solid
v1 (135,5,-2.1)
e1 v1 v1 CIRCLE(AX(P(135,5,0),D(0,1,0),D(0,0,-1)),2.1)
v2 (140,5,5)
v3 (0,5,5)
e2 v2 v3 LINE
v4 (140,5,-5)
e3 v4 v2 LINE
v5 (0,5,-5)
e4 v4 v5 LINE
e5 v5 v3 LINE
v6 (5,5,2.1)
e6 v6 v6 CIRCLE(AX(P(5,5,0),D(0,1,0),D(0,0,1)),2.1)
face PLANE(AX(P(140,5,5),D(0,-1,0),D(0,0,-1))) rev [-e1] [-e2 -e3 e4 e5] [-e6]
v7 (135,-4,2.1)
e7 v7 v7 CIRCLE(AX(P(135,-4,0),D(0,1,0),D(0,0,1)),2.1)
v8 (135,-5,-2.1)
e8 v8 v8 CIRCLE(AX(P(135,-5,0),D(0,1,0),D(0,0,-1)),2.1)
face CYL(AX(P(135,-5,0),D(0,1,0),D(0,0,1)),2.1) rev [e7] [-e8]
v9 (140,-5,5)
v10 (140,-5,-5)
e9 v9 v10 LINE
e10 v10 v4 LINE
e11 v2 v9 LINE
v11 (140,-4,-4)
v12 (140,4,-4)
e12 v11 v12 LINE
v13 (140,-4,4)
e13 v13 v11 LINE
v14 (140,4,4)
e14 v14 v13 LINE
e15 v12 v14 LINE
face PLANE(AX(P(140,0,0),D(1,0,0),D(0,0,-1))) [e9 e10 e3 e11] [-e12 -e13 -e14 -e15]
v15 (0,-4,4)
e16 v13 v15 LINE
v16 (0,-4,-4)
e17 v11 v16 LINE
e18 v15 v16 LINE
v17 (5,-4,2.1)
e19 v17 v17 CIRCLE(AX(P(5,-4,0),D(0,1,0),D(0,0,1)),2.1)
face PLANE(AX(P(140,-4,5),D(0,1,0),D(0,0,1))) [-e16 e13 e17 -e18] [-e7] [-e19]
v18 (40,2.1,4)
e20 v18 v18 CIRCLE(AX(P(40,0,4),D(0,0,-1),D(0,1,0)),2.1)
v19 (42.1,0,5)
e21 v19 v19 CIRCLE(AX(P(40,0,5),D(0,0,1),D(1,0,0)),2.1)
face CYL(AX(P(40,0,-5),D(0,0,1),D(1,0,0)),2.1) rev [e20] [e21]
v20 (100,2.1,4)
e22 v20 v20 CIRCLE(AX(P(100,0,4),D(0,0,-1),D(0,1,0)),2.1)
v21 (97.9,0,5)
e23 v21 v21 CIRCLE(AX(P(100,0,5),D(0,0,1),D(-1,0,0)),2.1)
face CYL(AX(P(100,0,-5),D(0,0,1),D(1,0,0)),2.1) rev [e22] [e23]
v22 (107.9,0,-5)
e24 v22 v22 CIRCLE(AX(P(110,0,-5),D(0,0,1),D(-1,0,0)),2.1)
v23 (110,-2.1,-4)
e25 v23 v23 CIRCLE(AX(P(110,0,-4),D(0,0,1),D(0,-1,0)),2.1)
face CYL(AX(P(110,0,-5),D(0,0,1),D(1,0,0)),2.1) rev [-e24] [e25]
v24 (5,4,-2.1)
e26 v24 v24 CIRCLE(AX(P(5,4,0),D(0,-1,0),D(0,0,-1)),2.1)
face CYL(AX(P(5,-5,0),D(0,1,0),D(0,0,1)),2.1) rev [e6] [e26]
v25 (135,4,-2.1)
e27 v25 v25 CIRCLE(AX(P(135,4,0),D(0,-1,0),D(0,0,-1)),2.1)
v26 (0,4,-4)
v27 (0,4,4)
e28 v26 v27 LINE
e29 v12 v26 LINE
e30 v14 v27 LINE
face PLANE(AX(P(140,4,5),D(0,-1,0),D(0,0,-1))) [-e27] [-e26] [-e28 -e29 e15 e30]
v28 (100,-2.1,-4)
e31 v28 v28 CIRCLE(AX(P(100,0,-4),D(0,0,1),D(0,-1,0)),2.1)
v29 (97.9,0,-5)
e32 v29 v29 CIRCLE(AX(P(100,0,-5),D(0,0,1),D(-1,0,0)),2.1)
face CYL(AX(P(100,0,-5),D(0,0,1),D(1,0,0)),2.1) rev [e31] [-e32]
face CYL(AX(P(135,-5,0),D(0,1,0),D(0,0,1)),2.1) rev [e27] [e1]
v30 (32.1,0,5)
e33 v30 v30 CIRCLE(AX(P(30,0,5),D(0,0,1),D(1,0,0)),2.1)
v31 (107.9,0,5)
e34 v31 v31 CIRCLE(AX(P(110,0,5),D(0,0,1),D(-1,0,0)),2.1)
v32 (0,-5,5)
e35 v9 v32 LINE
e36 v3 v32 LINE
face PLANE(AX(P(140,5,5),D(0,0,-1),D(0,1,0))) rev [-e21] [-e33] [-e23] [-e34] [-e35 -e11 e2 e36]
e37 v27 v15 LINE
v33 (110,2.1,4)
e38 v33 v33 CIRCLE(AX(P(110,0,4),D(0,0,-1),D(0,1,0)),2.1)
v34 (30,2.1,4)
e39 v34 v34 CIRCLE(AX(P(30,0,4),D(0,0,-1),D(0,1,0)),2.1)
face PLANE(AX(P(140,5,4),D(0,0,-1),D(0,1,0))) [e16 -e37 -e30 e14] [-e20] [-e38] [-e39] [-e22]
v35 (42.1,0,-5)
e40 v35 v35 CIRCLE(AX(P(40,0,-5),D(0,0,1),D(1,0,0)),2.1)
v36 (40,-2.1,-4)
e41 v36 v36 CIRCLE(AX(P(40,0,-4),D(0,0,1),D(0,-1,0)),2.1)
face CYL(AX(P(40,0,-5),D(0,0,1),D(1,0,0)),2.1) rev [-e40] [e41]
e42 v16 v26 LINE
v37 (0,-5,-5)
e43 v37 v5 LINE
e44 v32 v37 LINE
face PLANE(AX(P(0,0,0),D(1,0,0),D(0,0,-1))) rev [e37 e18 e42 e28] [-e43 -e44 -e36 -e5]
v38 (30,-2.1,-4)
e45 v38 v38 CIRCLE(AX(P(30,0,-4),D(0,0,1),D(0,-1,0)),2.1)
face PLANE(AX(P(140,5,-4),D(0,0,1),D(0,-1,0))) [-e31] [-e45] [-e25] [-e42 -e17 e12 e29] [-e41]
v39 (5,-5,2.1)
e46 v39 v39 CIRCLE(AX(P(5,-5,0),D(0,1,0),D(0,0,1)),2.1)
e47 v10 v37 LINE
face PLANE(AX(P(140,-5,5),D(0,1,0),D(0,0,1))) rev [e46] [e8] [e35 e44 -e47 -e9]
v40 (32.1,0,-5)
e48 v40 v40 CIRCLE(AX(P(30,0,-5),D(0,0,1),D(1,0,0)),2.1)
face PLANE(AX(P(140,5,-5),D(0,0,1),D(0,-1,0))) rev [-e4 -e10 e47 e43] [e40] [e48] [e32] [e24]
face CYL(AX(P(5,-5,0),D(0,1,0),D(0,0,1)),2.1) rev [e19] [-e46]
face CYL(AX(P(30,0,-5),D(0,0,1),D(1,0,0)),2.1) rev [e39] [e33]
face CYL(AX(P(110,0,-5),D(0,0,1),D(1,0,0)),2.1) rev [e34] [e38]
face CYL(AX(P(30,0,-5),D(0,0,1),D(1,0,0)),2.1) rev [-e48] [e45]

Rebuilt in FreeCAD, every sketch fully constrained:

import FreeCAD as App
import Part
import Sketcher

V = App.Vector


def add_polygon(sketch, points):
    """Adds a closed chain of lines whose ends are joined by coincident constraints."""
    first, n = sketch.GeometryCount, len(points)
    for a, b in zip(points, points[1:] + points[:1]):
        sketch.addGeometry(Part.LineSegment(App.Vector(*a, 0), App.Vector(*b, 0)), False)
    for i in range(n):
        sketch.addConstraint(Sketcher.Constraint("Coincident", first + i, 2, first + (i + 1) % n, 1))

doc = App.newDocument("Part")
params = doc.addObject("Spreadsheet::Sheet", "Params")
for row, (alias, value) in enumerate([
    ("sketch1_width", "10 mm"),
    ("sketch1_width2", "8 mm"),
    ("pad1_length", "140 mm"),
    ("sketch2_diameter", "4.2 mm"),
    ("sketch3_diameter", "4.2 mm"),
], start=1):
    params.set(f"A{row}", alias)
    params.set(f"B{row}", "=" + value)
    params.setAlias(f"B{row}", alias)

body = doc.addObject("PartDesign::Body", "Body")

sketch1 = body.newObject("Sketcher::SketchObject", "Sketch")
sketch1.AttachmentSupport = (doc.getObject("YZ_Plane"), [""])
sketch1.MapMode = "FlatFace"
add_polygon(sketch1, [(5, 5), (-5, 5), (-5, -5), (5, -5)])
add_polygon(sketch1, [(-4, -4), (-4, 4), (4, 4), (4, -4)])
sketch1.addConstraint([
    Sketcher.Constraint("Horizontal", 0),
    Sketcher.Constraint("Vertical", 1),
    Sketcher.Constraint("Horizontal", 2),
    Sketcher.Constraint("Vertical", 3),
    Sketcher.Constraint("Vertical", 4),
    Sketcher.Constraint("Horizontal", 5),
    Sketcher.Constraint("Vertical", 6),
    Sketcher.Constraint("Horizontal", 7),
    Sketcher.Constraint("Symmetric", 0, 2, 2, 2, -1, 1),
    Sketcher.Constraint("Symmetric", 4, 2, 6, 2, -1, 1),
    Sketcher.Constraint("Equal", 2, 1),
    Sketcher.Constraint("Equal", 7, 4),
    Sketcher.Constraint("DistanceX", 0, 2, 0, 1, 10.0),
    Sketcher.Constraint("DistanceX", 5, 1, 5, 2, 8.0),
])
sketch1.setExpression("Constraints[20]", "Params.sketch1_width")
sketch1.setExpression("Constraints[21]", "Params.sketch1_width2")
pad1 = body.newObject("PartDesign::Pad", "Pad")
pad1.Profile = sketch1
pad1.setExpression("Length", "Params.pad1_length")

sketch2 = body.newObject("Sketcher::SketchObject", "Sketch001")
sketch2.AttachmentSupport = (doc.getObject("XZ_Plane"), [""])
sketch2.MapMode = "FlatFace"
sketch2.AttachmentOffset = App.Placement(V(0, 0, -5), App.Rotation())
sketch2.addGeometry([
    Part.Circle(V(5, 0, 0), V(0, 0, 1), 2.1),
    Part.Circle(V(135, 0, 0), V(0, 0, 1), 2.1),
], False)
sketch2.addConstraint([
    Sketcher.Constraint("Equal", 0, 1),
    Sketcher.Constraint("PointOnObject", 0, 3, -1),
    Sketcher.Constraint("PointOnObject", 1, 3, -1),
    Sketcher.Constraint("Diameter", 0, 4.2),
    Sketcher.Constraint("DistanceX", -1, 1, 0, 3, 5.0),
    Sketcher.Constraint("DistanceX", -1, 1, 1, 3, 135.0),
])
sketch2.setExpression("Constraints[3]", "Params.sketch2_diameter")
pocket1 = body.newObject("PartDesign::Pocket", "Pocket")
pocket1.Profile = sketch2
pocket1.Type = "ThroughAll"
pocket1.Reversed = True

sketch3 = body.newObject("Sketcher::SketchObject", "Sketch002")
sketch3.AttachmentSupport = (doc.getObject("XY_Plane"), [""])
sketch3.MapMode = "FlatFace"
sketch3.AttachmentOffset = App.Placement(V(0, 0, 5), App.Rotation())
sketch3.addGeometry([
    Part.Circle(V(40, 0, 0), V(0, 0, 1), 2.1),
    Part.Circle(V(30, 0, 0), V(0, 0, 1), 2.1),
    Part.Circle(V(110, 0, 0), V(0, 0, 1), 2.1),
    Part.Circle(V(100, 0, 0), V(0, 0, 1), 2.1),
], False)
sketch3.addConstraint([
    Sketcher.Constraint("Equal", 0, 1),
    Sketcher.Constraint("Equal", 1, 2),
    Sketcher.Constraint("Equal", 2, 3),
    Sketcher.Constraint("PointOnObject", 0, 3, -1),
    Sketcher.Constraint("PointOnObject", 1, 3, -1),
    Sketcher.Constraint("PointOnObject", 2, 3, -1),
    Sketcher.Constraint("PointOnObject", 3, 3, -1),
    Sketcher.Constraint("Diameter", 0, 4.2),
    Sketcher.Constraint("DistanceX", -1, 1, 0, 3, 40.0),
    Sketcher.Constraint("DistanceX", -1, 1, 1, 3, 30.0),
    Sketcher.Constraint("DistanceX", -1, 1, 2, 3, 110.0),
    Sketcher.Constraint("DistanceX", -1, 1, 3, 3, 100.0),
])
sketch3.setExpression("Constraints[7]", "Params.sketch3_diameter")
pocket2 = body.newObject("PartDesign::Pocket", "Pocket001")
pocket2.Profile = sketch3
pocket2.Type = "ThroughAll"

doc.recompute()
